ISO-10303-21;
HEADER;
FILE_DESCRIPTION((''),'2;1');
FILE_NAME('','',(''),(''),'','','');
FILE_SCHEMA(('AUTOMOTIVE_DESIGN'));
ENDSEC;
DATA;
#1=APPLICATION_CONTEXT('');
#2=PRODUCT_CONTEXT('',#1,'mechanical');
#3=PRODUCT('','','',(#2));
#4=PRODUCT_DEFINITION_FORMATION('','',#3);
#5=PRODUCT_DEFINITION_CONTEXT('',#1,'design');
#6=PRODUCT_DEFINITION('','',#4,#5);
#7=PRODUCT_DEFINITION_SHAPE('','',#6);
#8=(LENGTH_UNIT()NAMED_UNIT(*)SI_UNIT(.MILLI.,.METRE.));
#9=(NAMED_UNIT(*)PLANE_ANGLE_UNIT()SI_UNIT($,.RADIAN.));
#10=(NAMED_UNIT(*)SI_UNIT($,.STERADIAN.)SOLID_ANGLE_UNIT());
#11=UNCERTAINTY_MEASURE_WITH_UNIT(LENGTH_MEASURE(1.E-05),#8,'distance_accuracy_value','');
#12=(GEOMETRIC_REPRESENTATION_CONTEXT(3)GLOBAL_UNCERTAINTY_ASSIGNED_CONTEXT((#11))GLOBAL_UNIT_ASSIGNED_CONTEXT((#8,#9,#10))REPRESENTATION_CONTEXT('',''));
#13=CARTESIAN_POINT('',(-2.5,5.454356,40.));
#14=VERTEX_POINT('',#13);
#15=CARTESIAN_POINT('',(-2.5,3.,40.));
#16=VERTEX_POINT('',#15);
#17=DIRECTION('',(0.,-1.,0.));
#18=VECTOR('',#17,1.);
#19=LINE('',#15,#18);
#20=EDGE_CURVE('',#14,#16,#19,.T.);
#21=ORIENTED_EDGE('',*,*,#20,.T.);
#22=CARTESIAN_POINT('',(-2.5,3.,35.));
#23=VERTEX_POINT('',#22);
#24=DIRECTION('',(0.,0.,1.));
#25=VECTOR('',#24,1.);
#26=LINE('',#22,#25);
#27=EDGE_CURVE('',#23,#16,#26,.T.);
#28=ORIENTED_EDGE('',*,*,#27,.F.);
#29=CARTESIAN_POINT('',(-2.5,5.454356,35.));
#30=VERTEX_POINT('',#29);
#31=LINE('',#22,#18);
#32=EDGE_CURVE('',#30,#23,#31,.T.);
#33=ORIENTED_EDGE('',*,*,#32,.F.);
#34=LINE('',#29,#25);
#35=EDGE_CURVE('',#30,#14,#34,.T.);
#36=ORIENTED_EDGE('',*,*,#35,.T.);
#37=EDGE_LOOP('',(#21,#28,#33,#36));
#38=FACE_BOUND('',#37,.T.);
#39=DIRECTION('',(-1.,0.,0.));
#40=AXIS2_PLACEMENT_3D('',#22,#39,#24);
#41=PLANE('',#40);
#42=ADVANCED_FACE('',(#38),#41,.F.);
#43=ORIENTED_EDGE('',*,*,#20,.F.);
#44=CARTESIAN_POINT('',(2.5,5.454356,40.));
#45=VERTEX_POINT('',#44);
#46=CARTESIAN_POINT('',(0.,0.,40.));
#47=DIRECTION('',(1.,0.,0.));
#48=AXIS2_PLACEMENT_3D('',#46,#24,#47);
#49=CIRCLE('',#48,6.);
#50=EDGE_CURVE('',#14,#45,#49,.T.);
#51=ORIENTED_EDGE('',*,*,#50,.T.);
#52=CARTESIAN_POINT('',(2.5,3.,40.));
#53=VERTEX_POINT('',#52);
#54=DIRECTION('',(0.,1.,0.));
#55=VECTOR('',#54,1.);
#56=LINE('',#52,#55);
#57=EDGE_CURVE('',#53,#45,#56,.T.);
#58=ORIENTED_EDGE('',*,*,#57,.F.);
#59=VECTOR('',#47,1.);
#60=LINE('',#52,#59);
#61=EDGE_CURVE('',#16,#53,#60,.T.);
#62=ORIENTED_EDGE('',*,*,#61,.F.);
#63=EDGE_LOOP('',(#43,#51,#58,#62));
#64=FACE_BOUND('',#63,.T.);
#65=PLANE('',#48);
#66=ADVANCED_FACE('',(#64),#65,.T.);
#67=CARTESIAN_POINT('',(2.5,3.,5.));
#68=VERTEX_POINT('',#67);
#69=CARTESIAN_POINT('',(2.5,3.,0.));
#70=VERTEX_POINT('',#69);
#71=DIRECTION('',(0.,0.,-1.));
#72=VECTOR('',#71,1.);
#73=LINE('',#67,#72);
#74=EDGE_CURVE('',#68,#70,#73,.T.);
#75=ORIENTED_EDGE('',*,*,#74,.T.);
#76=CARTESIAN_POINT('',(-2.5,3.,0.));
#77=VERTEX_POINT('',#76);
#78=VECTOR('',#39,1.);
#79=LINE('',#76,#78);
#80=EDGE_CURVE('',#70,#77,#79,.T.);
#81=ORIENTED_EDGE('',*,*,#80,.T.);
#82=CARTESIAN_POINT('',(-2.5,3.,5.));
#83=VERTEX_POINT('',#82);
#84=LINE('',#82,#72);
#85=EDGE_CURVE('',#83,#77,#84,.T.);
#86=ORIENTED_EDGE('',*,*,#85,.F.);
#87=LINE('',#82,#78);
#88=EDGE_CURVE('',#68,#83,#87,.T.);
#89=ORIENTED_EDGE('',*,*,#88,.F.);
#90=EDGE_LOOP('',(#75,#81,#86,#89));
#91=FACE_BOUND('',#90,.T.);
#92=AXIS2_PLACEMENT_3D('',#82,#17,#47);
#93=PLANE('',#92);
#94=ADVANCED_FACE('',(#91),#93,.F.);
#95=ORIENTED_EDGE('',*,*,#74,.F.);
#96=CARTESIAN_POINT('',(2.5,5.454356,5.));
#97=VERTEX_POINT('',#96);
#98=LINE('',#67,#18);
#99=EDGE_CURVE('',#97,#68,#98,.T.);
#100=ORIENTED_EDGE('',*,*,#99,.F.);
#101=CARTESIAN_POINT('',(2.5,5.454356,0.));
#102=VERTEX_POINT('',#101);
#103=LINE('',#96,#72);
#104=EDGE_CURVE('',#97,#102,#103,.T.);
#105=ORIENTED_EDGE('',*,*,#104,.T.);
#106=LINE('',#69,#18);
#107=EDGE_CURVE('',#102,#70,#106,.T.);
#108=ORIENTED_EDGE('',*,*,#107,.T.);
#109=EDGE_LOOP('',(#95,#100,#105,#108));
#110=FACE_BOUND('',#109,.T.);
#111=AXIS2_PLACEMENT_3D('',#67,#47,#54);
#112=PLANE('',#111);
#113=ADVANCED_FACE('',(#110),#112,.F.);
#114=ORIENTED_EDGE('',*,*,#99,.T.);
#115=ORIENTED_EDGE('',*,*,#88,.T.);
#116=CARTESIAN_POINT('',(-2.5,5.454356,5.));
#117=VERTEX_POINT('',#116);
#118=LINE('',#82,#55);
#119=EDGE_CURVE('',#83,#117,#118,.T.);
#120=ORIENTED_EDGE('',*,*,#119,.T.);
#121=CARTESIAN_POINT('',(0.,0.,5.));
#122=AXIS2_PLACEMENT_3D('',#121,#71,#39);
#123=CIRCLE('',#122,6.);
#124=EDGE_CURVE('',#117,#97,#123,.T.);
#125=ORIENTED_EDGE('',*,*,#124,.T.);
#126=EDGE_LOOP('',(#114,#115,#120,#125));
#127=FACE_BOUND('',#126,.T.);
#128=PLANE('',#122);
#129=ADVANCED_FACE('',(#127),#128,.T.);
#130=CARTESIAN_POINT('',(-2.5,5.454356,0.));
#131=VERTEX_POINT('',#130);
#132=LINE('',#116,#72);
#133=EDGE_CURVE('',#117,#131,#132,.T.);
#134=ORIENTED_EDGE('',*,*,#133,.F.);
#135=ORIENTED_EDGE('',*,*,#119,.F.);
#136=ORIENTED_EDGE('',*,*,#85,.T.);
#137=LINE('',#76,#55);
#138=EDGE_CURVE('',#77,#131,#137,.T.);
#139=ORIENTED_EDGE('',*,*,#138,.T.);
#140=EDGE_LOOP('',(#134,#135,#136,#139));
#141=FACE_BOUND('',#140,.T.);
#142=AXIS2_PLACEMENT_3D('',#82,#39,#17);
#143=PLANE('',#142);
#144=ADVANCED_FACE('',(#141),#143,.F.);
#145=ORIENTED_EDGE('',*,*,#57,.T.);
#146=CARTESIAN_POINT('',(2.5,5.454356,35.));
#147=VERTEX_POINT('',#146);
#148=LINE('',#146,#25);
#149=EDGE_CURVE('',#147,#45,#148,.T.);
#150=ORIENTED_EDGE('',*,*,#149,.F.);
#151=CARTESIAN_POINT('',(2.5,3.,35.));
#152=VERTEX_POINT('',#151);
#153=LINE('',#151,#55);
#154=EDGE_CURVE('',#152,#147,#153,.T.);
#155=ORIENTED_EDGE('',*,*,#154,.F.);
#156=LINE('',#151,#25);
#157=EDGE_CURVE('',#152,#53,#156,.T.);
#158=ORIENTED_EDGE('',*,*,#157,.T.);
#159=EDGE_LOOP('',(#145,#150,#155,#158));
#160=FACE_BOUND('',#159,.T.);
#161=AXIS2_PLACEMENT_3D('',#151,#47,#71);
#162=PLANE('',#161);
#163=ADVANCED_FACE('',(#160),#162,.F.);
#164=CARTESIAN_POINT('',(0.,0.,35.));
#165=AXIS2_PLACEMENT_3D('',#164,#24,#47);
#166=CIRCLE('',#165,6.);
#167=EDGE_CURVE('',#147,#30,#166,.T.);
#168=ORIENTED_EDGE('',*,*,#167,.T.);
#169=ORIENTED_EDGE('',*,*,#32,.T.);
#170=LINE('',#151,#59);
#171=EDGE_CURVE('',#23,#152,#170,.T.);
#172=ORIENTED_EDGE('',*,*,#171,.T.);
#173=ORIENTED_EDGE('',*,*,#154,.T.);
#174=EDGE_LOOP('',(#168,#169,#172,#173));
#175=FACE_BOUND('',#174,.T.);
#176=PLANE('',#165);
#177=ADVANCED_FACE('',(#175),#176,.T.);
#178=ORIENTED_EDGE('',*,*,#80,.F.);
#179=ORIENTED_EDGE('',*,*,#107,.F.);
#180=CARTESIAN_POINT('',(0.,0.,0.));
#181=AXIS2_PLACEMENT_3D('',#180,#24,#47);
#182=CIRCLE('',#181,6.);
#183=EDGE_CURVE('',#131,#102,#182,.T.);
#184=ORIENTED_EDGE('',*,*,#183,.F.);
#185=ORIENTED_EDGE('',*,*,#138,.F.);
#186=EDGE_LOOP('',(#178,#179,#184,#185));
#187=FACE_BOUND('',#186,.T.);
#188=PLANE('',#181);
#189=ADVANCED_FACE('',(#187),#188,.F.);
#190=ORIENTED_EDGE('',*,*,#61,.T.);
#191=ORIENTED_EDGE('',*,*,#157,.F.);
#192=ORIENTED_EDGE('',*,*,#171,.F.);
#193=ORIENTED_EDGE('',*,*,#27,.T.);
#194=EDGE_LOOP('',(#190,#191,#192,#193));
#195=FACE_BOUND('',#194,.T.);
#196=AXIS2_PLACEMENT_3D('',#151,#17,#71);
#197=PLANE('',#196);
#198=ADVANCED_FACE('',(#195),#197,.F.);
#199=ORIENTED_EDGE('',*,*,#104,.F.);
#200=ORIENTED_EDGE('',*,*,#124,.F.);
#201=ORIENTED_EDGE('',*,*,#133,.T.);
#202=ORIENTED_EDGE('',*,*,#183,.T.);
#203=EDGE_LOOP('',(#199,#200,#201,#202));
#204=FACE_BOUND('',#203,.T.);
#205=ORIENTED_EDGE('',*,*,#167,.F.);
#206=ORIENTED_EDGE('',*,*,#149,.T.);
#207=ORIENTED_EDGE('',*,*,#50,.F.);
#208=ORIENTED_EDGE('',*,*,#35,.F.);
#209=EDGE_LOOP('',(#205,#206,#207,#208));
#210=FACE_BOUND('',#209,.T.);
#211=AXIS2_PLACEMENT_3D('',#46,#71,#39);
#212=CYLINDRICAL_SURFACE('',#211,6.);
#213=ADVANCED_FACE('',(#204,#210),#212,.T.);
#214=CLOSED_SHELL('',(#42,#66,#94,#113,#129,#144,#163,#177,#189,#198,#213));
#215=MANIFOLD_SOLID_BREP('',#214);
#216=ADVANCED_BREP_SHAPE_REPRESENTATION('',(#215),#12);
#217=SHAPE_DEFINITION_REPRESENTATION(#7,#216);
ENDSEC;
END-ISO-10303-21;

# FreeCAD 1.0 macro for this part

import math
import FreeCAD as App
import Part
import Sketcher

V = App.Vector

doc = App.newDocument("Part")
body = doc.addObject("PartDesign::Body", "Body")

# Sketch on XY plane
sketch1 = body.newObject("Sketcher::SketchObject", "Sketch")
sketch1.AttachmentSupport = (doc.getObject("XY_Plane"), [""])
sketch1.MapMode = "FlatFace"
sketch1.addGeometry(Part.Circle(V(0, 0, 0), V(0, 0, 1), 6), False)
sketch1.addConstraint(Sketcher.Constraint("Coincident", 0, 3, -1, 1))
sketch1.addConstraint(Sketcher.Constraint("Diameter", 0, 12.0))
pad1 = body.newObject("PartDesign::Pad", "Pad")
pad1.Profile = sketch1
pad1.Length = 40

# Sketch on XY plane
sketch2 = body.newObject("Sketcher::SketchObject", "Sketch001")
sketch2.AttachmentSupport = (doc.getObject("XY_Plane"), [""])
sketch2.MapMode = "FlatFace"
sketch2.AttachmentOffset = App.Placement(V(0, 0, 35), App.Rotation())
sketch2.addGeometry(Part.LineSegment(V(-2.5, 3, 0), V(2.5, 3, 0)), False)
sketch2.addGeometry(Part.LineSegment(V(2.5, 3, 0), V(2.5, 5.454356, 0)), False)
sketch2.addGeometry(Part.ArcOfCircle(Part.Circle(V(0, 0, 0), V(0, 0, 1), 6), math.radians(65.375682), math.radians(114.624318)), False)
sketch2.addGeometry(Part.LineSegment(V(-2.5, 5.454356, 0), V(-2.5, 3, 0)), False)
sketch2.addConstraint(Sketcher.Constraint("Coincident", 0, 2, 1, 1))
sketch2.addConstraint(Sketcher.Constraint("Coincident", 1, 2, 2, 1))
sketch2.addConstraint(Sketcher.Constraint("Coincident", 2, 2, 3, 1))
sketch2.addConstraint(Sketcher.Constraint("Coincident", 3, 2, 0, 1))
sketch2.addConstraint(Sketcher.Constraint("Horizontal", 0))
sketch2.addConstraint(Sketcher.Constraint("Vertical", 1))
sketch2.addConstraint(Sketcher.Constraint("Vertical", 3))
sketch2.addConstraint(Sketcher.Constraint("Coincident", 2, 3, -1, 1))
sketch2.addConstraint(Sketcher.Constraint("Horizontal", 1, 2, 2, 2))
sketch2.addConstraint(Sketcher.Constraint("Radius", 2, 6.0))
sketch2.addConstraint(Sketcher.Constraint("DistanceX", 0, 1, 0, 2, 5.0))
sketch2.addConstraint(Sketcher.Constraint("DistanceY", -1, 1, 0, 2, 3.0))
pocket1 = body.newObject("PartDesign::Pocket", "Pocket")
pocket1.Profile = sketch2
pocket1.Length = 5
pocket1.Reversed = True

# Sketch on XY plane
sketch3 = body.newObject("Sketcher::SketchObject", "Sketch002")
sketch3.AttachmentSupport = (doc.getObject("XY_Plane"), [""])
sketch3.MapMode = "FlatFace"
sketch3.addGeometry(Part.LineSegment(V(2.5, 3, 0), V(-2.5, 3, 0)), False)
sketch3.addGeometry(Part.LineSegment(V(-2.5, 3, 0), V(-2.5, 5.454356, 0)), False)
sketch3.addGeometry(Part.ArcOfCircle(Part.Circle(V(0, 0, 0), V(0, 0, 1), 6), math.radians(65.375682), math.radians(114.624318)), False)
sketch3.addGeometry(Part.LineSegment(V(2.5, 5.454356, 0), V(2.5, 3, 0)), False)
sketch3.addConstraint(Sketcher.Constraint("Coincident", 0, 2, 1, 1))
sketch3.addConstraint(Sketcher.Constraint("Coincident", 1, 2, 2, 2))
sketch3.addConstraint(Sketcher.Constraint("Coincident", 2, 1, 3, 1))
sketch3.addConstraint(Sketcher.Constraint("Coincident", 3, 2, 0, 1))
sketch3.addConstraint(Sketcher.Constraint("Horizontal", 0))
sketch3.addConstraint(Sketcher.Constraint("Vertical", 1))
sketch3.addConstraint(Sketcher.Constraint("Vertical", 3))
sketch3.addConstraint(Sketcher.Constraint("Coincident", 2, 3, -1, 1))
sketch3.addConstraint(Sketcher.Constraint("Horizontal", 1, 2, 2, 1))
sketch3.addConstraint(Sketcher.Constraint("Radius", 2, 6.0))
sketch3.addConstraint(Sketcher.Constraint("DistanceX", 0, 2, 0, 1, 5.0))
sketch3.addConstraint(Sketcher.Constraint("DistanceY", -1, 1, 0, 2, 3.0))
pocket2 = body.newObject("PartDesign::Pocket", "Pocket001")
pocket2.Profile = sketch3
pocket2.Length = 5
pocket2.Reversed = True

doc.recompute()
